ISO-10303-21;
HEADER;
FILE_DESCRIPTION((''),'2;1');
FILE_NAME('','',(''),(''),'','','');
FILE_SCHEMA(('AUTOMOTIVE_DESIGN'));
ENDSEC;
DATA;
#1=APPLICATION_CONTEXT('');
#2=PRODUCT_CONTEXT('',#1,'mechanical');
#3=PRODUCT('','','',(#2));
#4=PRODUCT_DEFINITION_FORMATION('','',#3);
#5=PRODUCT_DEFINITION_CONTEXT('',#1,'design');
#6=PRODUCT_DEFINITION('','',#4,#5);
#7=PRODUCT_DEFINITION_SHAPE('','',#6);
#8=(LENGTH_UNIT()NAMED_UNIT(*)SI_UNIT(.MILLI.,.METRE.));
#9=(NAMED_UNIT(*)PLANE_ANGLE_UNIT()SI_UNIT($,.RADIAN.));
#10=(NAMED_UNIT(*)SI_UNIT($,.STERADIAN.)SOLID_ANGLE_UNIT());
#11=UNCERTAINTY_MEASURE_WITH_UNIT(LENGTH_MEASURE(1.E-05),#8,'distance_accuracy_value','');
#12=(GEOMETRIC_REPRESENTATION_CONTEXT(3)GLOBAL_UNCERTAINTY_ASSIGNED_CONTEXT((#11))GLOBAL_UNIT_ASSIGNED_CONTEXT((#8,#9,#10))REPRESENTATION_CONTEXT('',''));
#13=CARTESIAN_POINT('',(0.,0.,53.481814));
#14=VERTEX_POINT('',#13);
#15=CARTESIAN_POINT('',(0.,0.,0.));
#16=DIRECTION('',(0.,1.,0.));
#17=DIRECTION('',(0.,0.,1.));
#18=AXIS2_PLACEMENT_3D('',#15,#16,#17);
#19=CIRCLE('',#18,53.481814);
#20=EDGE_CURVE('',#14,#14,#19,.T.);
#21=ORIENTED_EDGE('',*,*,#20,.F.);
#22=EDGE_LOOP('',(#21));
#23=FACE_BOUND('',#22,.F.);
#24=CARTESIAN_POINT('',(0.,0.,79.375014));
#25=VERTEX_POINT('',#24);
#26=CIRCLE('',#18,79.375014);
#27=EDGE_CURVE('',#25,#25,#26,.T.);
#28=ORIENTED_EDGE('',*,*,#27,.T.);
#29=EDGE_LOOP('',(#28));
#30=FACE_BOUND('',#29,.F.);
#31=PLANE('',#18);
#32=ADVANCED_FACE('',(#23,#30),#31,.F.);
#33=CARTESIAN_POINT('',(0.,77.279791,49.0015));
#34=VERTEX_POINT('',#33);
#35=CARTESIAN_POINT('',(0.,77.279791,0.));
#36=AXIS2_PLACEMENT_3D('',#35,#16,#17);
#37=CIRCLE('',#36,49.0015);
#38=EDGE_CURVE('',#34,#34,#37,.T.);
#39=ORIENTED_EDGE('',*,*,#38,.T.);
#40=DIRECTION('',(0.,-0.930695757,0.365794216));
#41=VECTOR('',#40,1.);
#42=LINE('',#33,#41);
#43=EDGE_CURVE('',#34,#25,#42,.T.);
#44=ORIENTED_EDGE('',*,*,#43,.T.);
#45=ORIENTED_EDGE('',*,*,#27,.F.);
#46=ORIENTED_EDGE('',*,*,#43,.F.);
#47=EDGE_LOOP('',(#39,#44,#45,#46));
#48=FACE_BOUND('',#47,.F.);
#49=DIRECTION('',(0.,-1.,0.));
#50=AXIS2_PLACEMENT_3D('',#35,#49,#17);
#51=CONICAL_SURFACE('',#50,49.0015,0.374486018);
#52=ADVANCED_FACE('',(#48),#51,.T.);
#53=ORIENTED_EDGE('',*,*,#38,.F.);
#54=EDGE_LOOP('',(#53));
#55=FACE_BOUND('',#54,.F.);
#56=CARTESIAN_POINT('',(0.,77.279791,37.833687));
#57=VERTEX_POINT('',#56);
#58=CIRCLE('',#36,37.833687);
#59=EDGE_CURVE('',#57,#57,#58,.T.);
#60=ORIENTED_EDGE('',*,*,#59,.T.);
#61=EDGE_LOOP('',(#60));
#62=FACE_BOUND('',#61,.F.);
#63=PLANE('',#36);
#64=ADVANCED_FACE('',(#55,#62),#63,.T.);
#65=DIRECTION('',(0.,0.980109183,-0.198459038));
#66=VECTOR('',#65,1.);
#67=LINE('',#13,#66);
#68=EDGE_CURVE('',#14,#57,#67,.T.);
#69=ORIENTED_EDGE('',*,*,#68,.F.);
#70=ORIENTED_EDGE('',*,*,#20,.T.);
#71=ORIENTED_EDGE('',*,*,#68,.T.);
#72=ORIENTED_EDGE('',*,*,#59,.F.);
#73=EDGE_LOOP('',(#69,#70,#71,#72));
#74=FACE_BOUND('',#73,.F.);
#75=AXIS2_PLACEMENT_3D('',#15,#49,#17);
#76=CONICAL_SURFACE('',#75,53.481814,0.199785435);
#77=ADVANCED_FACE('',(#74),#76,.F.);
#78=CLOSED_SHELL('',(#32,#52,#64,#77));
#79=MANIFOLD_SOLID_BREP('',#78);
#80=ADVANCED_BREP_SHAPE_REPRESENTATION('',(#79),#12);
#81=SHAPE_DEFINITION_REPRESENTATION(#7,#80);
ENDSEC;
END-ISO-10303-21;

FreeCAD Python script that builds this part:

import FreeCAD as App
import Part
import Sketcher

V = App.Vector
Q = App.Units.Quantity


def add_polygon(sketch, points):
    """Adds a closed chain of lines whose ends are joined by coincident constraints."""
    first, n = sketch.GeometryCount, len(points)
    for a, b in zip(points, points[1:] + points[:1]):
        sketch.addGeometry(Part.LineSegment(App.Vector(*a, 0), App.Vector(*b, 0)), False)
    for i in range(n):
        sketch.addConstraint(Sketcher.Constraint("Coincident", first + i, 2, first + (i + 1) % n, 1))

doc = App.newDocument("Part")
body = doc.addObject("PartDesign::Body", "Body")

# Sketch on YZ plane
sketch1 = body.newObject("Sketcher::SketchObject", "Sketch")
sketch1.AttachmentSupport = (doc.getObject("YZ_Plane"), [""])
sketch1.MapMode = "FlatFace"
add_polygon(sketch1, [(0, 79), (0, 53), (77, 38), (77, 49)])  # lines 0-3
sketch1.addConstraint(Sketcher.Constraint("Vertical", 0))
sketch1.addConstraint(Sketcher.Constraint("Vertical", 2))
sketch1.addConstraint(Sketcher.Constraint("PointOnObject", 0, 2, -2))
sketch1.addConstraint(Sketcher.Constraint("DistanceY", 0, 2, 0, 1, Q("25.8932 mm")))
sketch1.addConstraint(Sketcher.Constraint("DistanceY", -1, 1, 2, 2, Q("49.0015 mm")))
sketch1.addConstraint(Sketcher.Constraint("Distance", 3, Q("83.034429 mm")))
sketch1.addConstraint(Sketcher.Constraint("DistanceY", 2, 1, 2, 2, Q("11.167813 mm")))
sketch1.addConstraint(Sketcher.Constraint("DistanceX", -1, 1, 1, 2, Q("77.279791 mm")))
revolution = body.newObject("PartDesign::Revolution", "Revolution")
revolution.Profile = sketch1
revolution.ReferenceAxis = (sketch1, ["H_Axis"])
revolution.Angle = 360

doc.recompute()
